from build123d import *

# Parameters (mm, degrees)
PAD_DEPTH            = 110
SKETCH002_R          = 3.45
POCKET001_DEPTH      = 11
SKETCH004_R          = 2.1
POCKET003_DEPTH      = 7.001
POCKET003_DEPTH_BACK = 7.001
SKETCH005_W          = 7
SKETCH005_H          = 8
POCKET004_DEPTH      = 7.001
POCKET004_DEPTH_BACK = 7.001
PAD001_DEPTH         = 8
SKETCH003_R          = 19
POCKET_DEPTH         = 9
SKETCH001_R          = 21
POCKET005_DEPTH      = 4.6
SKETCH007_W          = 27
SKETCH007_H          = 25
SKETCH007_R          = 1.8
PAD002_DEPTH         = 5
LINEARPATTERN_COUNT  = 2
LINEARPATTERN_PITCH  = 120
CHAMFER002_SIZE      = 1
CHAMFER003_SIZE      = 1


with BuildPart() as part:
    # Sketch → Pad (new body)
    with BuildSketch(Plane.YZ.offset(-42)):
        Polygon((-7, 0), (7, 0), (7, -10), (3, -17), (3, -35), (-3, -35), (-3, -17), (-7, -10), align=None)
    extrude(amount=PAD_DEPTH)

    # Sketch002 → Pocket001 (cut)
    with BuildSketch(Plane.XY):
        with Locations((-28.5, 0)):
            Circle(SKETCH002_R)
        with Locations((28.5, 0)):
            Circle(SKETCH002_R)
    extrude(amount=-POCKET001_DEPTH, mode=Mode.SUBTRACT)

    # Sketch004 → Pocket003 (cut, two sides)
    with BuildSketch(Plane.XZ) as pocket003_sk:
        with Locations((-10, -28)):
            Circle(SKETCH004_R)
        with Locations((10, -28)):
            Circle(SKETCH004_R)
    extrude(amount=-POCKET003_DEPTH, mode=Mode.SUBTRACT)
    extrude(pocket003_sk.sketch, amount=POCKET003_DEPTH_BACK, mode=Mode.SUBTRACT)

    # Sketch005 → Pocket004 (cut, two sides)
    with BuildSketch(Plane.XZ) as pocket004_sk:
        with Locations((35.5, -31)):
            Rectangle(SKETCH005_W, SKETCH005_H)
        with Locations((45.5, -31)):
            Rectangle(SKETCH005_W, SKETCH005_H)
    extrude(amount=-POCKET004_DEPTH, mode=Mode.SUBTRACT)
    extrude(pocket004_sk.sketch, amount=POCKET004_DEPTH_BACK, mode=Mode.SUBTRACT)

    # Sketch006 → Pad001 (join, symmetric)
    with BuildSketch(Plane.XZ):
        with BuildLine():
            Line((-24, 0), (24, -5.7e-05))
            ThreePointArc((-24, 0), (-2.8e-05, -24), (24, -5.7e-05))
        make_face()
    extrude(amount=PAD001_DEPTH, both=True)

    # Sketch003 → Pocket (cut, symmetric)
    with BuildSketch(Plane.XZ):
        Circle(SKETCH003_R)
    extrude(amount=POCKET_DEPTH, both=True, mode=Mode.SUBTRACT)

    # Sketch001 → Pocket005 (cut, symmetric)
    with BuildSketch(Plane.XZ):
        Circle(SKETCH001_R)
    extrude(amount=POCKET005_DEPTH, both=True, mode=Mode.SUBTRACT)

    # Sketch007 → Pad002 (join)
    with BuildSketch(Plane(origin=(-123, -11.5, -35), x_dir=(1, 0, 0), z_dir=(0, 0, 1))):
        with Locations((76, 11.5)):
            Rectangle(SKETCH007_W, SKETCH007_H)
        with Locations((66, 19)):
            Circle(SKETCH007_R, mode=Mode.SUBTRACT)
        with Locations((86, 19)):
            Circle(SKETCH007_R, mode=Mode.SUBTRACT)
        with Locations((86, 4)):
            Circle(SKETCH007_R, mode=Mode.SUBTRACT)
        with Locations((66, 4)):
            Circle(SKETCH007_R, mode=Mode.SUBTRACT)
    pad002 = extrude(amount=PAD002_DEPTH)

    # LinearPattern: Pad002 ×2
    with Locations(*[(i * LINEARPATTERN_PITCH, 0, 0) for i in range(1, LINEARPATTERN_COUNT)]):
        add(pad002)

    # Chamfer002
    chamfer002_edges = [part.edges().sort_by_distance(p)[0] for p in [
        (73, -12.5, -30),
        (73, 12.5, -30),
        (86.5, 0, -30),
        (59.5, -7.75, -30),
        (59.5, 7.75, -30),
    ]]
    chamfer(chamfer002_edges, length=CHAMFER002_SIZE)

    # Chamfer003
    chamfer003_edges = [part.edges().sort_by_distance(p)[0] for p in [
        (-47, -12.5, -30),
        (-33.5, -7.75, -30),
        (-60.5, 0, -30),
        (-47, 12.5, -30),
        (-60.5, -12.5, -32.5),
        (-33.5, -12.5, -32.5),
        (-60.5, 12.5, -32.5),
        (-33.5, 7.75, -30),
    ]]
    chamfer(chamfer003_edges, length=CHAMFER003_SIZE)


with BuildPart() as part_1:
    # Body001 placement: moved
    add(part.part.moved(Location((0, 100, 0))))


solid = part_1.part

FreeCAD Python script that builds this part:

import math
import FreeCAD as App
import Part
import Sketcher

V = App.Vector
Q = App.Units.Quantity


def edges_at(feature, points):
    """Names of the edges that pass closest to the given points."""
    edges = feature.Shape.Edges
    near = lambda p: min(range(len(edges)), key=lambda i: edges[i].distToShape(Part.Vertex(*p))[0])
    return sorted({f"Edge{near(p) + 1}" for p in points})

doc = App.newDocument("Part")
body = doc.addObject("PartDesign::Body", "Body")

# Sketch on YZ plane
sketch1 = body.newObject("Sketcher::SketchObject", "Sketch")
sketch1.AttachmentSupport = (doc.getObject("YZ_Plane"), [""])
sketch1.MapMode = "FlatFace"
sketch1.AttachmentOffset = App.Placement(V(0, 0, -42), App.Rotation())
sketch1.addGeometry([
    Part.LineSegment(V(7, 0, 0), V(-7, 0, 0)),  # 0
    Part.LineSegment(V(-7, 0, 0), V(-7, -10, 0)),  # 1
    Part.LineSegment(V(-7, -10, 0), V(-3, -17, 0)),  # 2
    Part.LineSegment(V(-3, -17, 0), V(-3, -35, 0)),  # 3
    Part.LineSegment(V(-3, -35, 0), V(3, -35, 0)),  # 4
    Part.LineSegment(V(3, -35, 0), V(3, -17, 0)),  # 5
    Part.LineSegment(V(3, -17, 0), V(7, -10, 0)),  # 6
    Part.LineSegment(V(7, -10, 0), V(7, 0, 0)),  # 7
], False)
sketch1.addConstraint([
    Sketcher.Constraint("Coincident", 0, 2, 1, 1),
    Sketcher.Constraint("Coincident", 1, 2, 2, 1),
    Sketcher.Constraint("Coincident", 2, 2, 3, 1),
    Sketcher.Constraint("Coincident", 3, 2, 4, 1),
    Sketcher.Constraint("Coincident", 4, 2, 5, 1),
    Sketcher.Constraint("Coincident", 5, 2, 6, 1),
    Sketcher.Constraint("Coincident", 6, 2, 7, 1),
    Sketcher.Constraint("Coincident", 7, 2, 0, 1),
    Sketcher.Constraint("Horizontal", 0),
    Sketcher.Constraint("Vertical", 1),
    Sketcher.Constraint("Vertical", 3),
    Sketcher.Constraint("Horizontal", 4),
    Sketcher.Constraint("Vertical", 5),
    Sketcher.Constraint("Vertical", 7),
    Sketcher.Constraint("Symmetric", 0, 2, 7, 2, -1, 1),
    Sketcher.Constraint("Symmetric", 2, 2, 5, 2, -2),
    Sketcher.Constraint("Horizontal", 1, 2, 6, 2),
    Sketcher.Constraint("DistanceX", 0, 2, 0, 1, 14.0),
    Sketcher.Constraint("DistanceX", 4, 1, 4, 2, 6.0),
    Sketcher.Constraint("DistanceY", 1, 2, 1, 1, 10.0),
    Sketcher.Constraint("DistanceY", 3, 2, 3, 1, 18.0),
    Sketcher.Constraint("DistanceY", 2, 2, -1, 1, 17.0),
])
pad1 = body.newObject("PartDesign::Pad", "Pad")
pad1.Profile = sketch1
pad1.Length = 110

# Sketch on XY plane
sketch2 = body.newObject("Sketcher::SketchObject", "Sketch001")
sketch2.AttachmentSupport = (doc.getObject("XY_Plane"), [""])
sketch2.MapMode = "FlatFace"
sketch2.addGeometry([
    Part.Circle(V(-28.5, 0, 0), V(0, 0, 1), 3.5),
    Part.Circle(V(28.5, 0, 0), V(0, 0, 1), 3.5),
], False)
sketch2.addConstraint([
    Sketcher.Constraint("Equal", 0, 1),
    Sketcher.Constraint("Symmetric", 0, 3, 1, 3, -1, 1),
    Sketcher.Constraint("PointOnObject", 0, 3, -1),
    Sketcher.Constraint("Diameter", 0, 6.9),
    Sketcher.Constraint("DistanceX", 0, 3, 1, 3, 57.0),
])
pocket1 = body.newObject("PartDesign::Pocket", "Pocket")
pocket1.Profile = sketch2
pocket1.Length = 11

# Sketch on XZ plane
sketch3 = body.newObject("Sketcher::SketchObject", "Sketch002")
sketch3.AttachmentSupport = (doc.getObject("XZ_Plane"), [""])
sketch3.MapMode = "FlatFace"
sketch3.addGeometry([
    Part.Circle(V(-10, -28, 0), V(0, 0, 1), 2.1),
    Part.Circle(V(10, -28, 0), V(0, 0, 1), 2.1),
], False)
sketch3.addConstraint([
    Sketcher.Constraint("Equal", 0, 1),
    Sketcher.Constraint("Symmetric", 0, 3, 1, 3, -2),
    Sketcher.Constraint("Diameter", 0, 4.2),
    Sketcher.Constraint("DistanceX", 0, 3, -1, 1, 10.0),
    Sketcher.Constraint("DistanceY", 0, 3, -1, 1, 28.0),
])
pocket2 = body.newObject("PartDesign::Pocket", "Pocket001")
pocket2.Profile = sketch3
pocket2.Type = "ThroughAll"
pocket2.Midplane = True

# Sketch on XZ plane
sketch4 = body.newObject("Sketcher::SketchObject", "Sketch003")
sketch4.AttachmentSupport = (doc.getObject("XZ_Plane"), [""])
sketch4.MapMode = "FlatFace"
sketch4.addGeometry([
    Part.LineSegment(V(32, -27, 0), V(32, -35, 0)),  # 0
    Part.LineSegment(V(32, -35, 0), V(39, -35, 0)),  # 1
    Part.LineSegment(V(39, -35, 0), V(39, -27, 0)),  # 2
    Part.LineSegment(V(39, -27, 0), V(32, -27, 0)),  # 3
    Part.LineSegment(V(42, -27, 0), V(42, -35, 0)),  # 4
    Part.LineSegment(V(42, -35, 0), V(49, -35, 0)),  # 5
    Part.LineSegment(V(49, -35, 0), V(49, -27, 0)),  # 6
    Part.LineSegment(V(49, -27, 0), V(42, -27, 0)),  # 7
], False)
sketch4.addConstraint([
    Sketcher.Constraint("Coincident", 0, 2, 1, 1),
    Sketcher.Constraint("Coincident", 1, 2, 2, 1),
    Sketcher.Constraint("Coincident", 2, 2, 3, 1),
    Sketcher.Constraint("Coincident", 3, 2, 0, 1),
    Sketcher.Constraint("Coincident", 4, 2, 5, 1),
    Sketcher.Constraint("Coincident", 5, 2, 6, 1),
    Sketcher.Constraint("Coincident", 6, 2, 7, 1),
    Sketcher.Constraint("Coincident", 7, 2, 4, 1),
    Sketcher.Constraint("Vertical", 0),
    Sketcher.Constraint("Horizontal", 1),
    Sketcher.Constraint("Vertical", 2),
    Sketcher.Constraint("Horizontal", 3),
    Sketcher.Constraint("Vertical", 4),
    Sketcher.Constraint("Horizontal", 5),
    Sketcher.Constraint("Vertical", 6),
    Sketcher.Constraint("Horizontal", 7),
    Sketcher.Constraint("Horizontal", 1, 2, 4, 2),
    Sketcher.Constraint("Horizontal", 3, 2, 6, 2),
    Sketcher.Constraint("Equal", 3, 5),
    Sketcher.Constraint("DistanceX", 1, 1, 1, 2, 7.0),
    Sketcher.Constraint("DistanceY", 0, 2, 0, 1, 8.0),
    Sketcher.Constraint("DistanceX", -1, 1, 0, 2, 32.0),
    Sketcher.Constraint("DistanceY", 0, 2, -1, 1, 35.0),
    Sketcher.Constraint("DistanceX", -1, 1, 4, 2, 42.0),
])
pocket3 = body.newObject("PartDesign::Pocket", "Pocket002")
pocket3.Profile = sketch4
pocket3.Type = "ThroughAll"
pocket3.Midplane = True

# Sketch on XZ plane
sketch5 = body.newObject("Sketcher::SketchObject", "Sketch004")
sketch5.AttachmentSupport = (doc.getObject("XZ_Plane"), [""])
sketch5.MapMode = "FlatFace"
sketch5.addGeometry([
    Part.LineSegment(V(24, 0, 0), V(-24, 0, 0)),
    Part.ArcOfCircle(Part.Circle(V(0, 0, 0), V(0, 0, 1), 24), math.radians(180), math.radians(360)),
], False)
sketch5.addConstraint([
    Sketcher.Constraint("Coincident", 0, 1, 1, 2),
    Sketcher.Constraint("Coincident", 1, 1, 0, 2),
    Sketcher.Constraint("Coincident", 1, 3, -1, 1),
    Sketcher.Constraint("PointOnObject", 1, 1, -1),
    Sketcher.Constraint("Radius", 1, 24.0),
    Sketcher.Constraint("Angle", 0, Q("179.999932 deg")),
])
pad2 = body.newObject("PartDesign::Pad", "Pad001")
pad2.Profile = sketch5
pad2.Length = 16
pad2.Midplane = True

# Sketch on XZ plane
sketch6 = body.newObject("Sketcher::SketchObject", "Sketch005")
sketch6.AttachmentSupport = (doc.getObject("XZ_Plane"), [""])
sketch6.MapMode = "FlatFace"
sketch6.addGeometry(Part.Circle(V(0, 0, 0), V(0, 0, 1), 19), False)
sketch6.addConstraint([
    Sketcher.Constraint("Coincident", 0, 3, -1, 1),
    Sketcher.Constraint("Diameter", 0, 38.0),
])
pocket4 = body.newObject("PartDesign::Pocket", "Pocket003")
pocket4.Profile = sketch6
pocket4.Length = 18
pocket4.Midplane = True

# Sketch on XZ plane
sketch7 = body.newObject("Sketcher::SketchObject", "Sketch006")
sketch7.AttachmentSupport = (doc.getObject("XZ_Plane"), [""])
sketch7.MapMode = "FlatFace"
sketch7.addGeometry(Part.Circle(V(0, 0, 0), V(0, 0, 1), 21), False)
sketch7.addConstraint([
    Sketcher.Constraint("Coincident", 0, 3, -1, 1),
    Sketcher.Constraint("Diameter", 0, 42.0),
])
pocket5 = body.newObject("PartDesign::Pocket", "Pocket004")
pocket5.Profile = sketch7
pocket5.Length = 9.2
pocket5.Midplane = True

# Sketch on XY plane
sketch8 = body.newObject("Sketcher::SketchObject", "Sketch007")
sketch8.AttachmentSupport = (doc.getObject("XY_Plane"), [""])
sketch8.MapMode = "FlatFace"
sketch8.AttachmentOffset = App.Placement(V(0, 0, -35), App.Rotation())
sketch8.addGeometry([
    Part.LineSegment(V(-60.5, 12.5, 0), V(-60.5, -12.5, 0)),  # 0
    Part.LineSegment(V(-60.5, -12.5, 0), V(-33.5, -12.5, 0)),  # 1
    Part.LineSegment(V(-33.5, -12.5, 0), V(-33.5, 12.5, 0)),  # 2
    Part.LineSegment(V(-33.5, 12.5, 0), V(-60.5, 12.5, 0)),  # 3
    Part.Circle(V(-57, -7.5, 0), V(0, 0, 1), 1.8),  # 4
    Part.Circle(V(-37, -7.5, 0), V(0, 0, 1), 1.8),  # 5
    Part.Circle(V(-57, 7.5, 0), V(0, 0, 1), 1.8),  # 6
    Part.Circle(V(-37, 7.5, 0), V(0, 0, 1), 1.8),  # 7
], False)
sketch8.addConstraint([
    Sketcher.Constraint("Coincident", 0, 2, 1, 1),
    Sketcher.Constraint("Coincident", 1, 2, 2, 1),
    Sketcher.Constraint("Coincident", 2, 2, 3, 1),
    Sketcher.Constraint("Coincident", 3, 2, 0, 1),
    Sketcher.Constraint("Vertical", 0),
    Sketcher.Constraint("Horizontal", 1),
    Sketcher.Constraint("Vertical", 2),
    Sketcher.Constraint("Horizontal", 3),
    Sketcher.Constraint("Equal", 4, 5),
    Sketcher.Constraint("Equal", 5, 6),
    Sketcher.Constraint("Equal", 6, 7),
    Sketcher.Constraint("Symmetric", 4, 3, 6, 3, -1),
    Sketcher.Constraint("Symmetric", 5, 3, 7, 3, -1),
    Sketcher.Constraint("Horizontal", 4, 3, 5, 3),
    Sketcher.Constraint("Diameter", 4, 3.6),
    Sketcher.Constraint("DistanceX", 1, 1, 1, 2, 27.0),
    Sketcher.Constraint("DistanceY", 0, 2, 0, 1, 25.0),
    Sketcher.Constraint("DistanceX", 4, 3, -1, 1, 57.0),
    Sketcher.Constraint("DistanceX", 5, 3, -1, 1, 37.0),
    Sketcher.Constraint("DistanceY", 4, 3, 6, 3, 15.0),
    Sketcher.Constraint("DistanceY", 0, 2, 4, 3, 5.0),
    Sketcher.Constraint("DistanceX", 0, 2, -1, 1, 60.5),
])
pad3 = body.newObject("PartDesign::Pad", "Pad002")
pad3.Profile = sketch8
pad3.Length = 5
doc.recompute()

linearpattern = body.newObject("PartDesign::LinearPattern", "LinearPattern")
linearpattern.Originals = [pad3]
linearpattern.Direction = (doc.getObject("X_Axis"), [""])
linearpattern.Mode = "offset"
linearpattern.Offset = 120
linearpattern.Occurrences = 2
body.Tip = linearpattern
doc.recompute()

chamfer = body.newObject("PartDesign::Chamfer", "Chamfer")
chamfer.Base = (linearpattern, edges_at(linearpattern, [
    (73, -12.5, -30),
    (73, 12.5, -30),
    (86.5, 0, -30),
    (59.5, -7.75, -30),
    (59.5, 7.75, -30),
]))
chamfer.Size = 1
doc.recompute()

chamfer2 = body.newObject("PartDesign::Chamfer", "Chamfer001")
chamfer2.Base = (chamfer, edges_at(chamfer, [
    (-47, -12.5, -30),
    (-33.5, -7.75, -30),
    (-60.5, 0, -30),
    (-47, 12.5, -30),
    (-60.5, -12.5, -32.5),
    (-33.5, -12.5, -32.5),
    (-60.5, 12.5, -32.5),
    (-33.5, 7.75, -30),
]))
chamfer2.Size = 1
body2 = doc.addObject("PartDesign::Body", "Body001")
doc.recompute()

body.Placement = App.Placement(V(0, 100, 0), App.Rotation(V(0, 0, 1), 0))
boolean = body2.newObject("PartDesign::Boolean", "Boolean")
boolean.Type = "Fuse"
boolean.addObjects([body])

doc.recompute()
